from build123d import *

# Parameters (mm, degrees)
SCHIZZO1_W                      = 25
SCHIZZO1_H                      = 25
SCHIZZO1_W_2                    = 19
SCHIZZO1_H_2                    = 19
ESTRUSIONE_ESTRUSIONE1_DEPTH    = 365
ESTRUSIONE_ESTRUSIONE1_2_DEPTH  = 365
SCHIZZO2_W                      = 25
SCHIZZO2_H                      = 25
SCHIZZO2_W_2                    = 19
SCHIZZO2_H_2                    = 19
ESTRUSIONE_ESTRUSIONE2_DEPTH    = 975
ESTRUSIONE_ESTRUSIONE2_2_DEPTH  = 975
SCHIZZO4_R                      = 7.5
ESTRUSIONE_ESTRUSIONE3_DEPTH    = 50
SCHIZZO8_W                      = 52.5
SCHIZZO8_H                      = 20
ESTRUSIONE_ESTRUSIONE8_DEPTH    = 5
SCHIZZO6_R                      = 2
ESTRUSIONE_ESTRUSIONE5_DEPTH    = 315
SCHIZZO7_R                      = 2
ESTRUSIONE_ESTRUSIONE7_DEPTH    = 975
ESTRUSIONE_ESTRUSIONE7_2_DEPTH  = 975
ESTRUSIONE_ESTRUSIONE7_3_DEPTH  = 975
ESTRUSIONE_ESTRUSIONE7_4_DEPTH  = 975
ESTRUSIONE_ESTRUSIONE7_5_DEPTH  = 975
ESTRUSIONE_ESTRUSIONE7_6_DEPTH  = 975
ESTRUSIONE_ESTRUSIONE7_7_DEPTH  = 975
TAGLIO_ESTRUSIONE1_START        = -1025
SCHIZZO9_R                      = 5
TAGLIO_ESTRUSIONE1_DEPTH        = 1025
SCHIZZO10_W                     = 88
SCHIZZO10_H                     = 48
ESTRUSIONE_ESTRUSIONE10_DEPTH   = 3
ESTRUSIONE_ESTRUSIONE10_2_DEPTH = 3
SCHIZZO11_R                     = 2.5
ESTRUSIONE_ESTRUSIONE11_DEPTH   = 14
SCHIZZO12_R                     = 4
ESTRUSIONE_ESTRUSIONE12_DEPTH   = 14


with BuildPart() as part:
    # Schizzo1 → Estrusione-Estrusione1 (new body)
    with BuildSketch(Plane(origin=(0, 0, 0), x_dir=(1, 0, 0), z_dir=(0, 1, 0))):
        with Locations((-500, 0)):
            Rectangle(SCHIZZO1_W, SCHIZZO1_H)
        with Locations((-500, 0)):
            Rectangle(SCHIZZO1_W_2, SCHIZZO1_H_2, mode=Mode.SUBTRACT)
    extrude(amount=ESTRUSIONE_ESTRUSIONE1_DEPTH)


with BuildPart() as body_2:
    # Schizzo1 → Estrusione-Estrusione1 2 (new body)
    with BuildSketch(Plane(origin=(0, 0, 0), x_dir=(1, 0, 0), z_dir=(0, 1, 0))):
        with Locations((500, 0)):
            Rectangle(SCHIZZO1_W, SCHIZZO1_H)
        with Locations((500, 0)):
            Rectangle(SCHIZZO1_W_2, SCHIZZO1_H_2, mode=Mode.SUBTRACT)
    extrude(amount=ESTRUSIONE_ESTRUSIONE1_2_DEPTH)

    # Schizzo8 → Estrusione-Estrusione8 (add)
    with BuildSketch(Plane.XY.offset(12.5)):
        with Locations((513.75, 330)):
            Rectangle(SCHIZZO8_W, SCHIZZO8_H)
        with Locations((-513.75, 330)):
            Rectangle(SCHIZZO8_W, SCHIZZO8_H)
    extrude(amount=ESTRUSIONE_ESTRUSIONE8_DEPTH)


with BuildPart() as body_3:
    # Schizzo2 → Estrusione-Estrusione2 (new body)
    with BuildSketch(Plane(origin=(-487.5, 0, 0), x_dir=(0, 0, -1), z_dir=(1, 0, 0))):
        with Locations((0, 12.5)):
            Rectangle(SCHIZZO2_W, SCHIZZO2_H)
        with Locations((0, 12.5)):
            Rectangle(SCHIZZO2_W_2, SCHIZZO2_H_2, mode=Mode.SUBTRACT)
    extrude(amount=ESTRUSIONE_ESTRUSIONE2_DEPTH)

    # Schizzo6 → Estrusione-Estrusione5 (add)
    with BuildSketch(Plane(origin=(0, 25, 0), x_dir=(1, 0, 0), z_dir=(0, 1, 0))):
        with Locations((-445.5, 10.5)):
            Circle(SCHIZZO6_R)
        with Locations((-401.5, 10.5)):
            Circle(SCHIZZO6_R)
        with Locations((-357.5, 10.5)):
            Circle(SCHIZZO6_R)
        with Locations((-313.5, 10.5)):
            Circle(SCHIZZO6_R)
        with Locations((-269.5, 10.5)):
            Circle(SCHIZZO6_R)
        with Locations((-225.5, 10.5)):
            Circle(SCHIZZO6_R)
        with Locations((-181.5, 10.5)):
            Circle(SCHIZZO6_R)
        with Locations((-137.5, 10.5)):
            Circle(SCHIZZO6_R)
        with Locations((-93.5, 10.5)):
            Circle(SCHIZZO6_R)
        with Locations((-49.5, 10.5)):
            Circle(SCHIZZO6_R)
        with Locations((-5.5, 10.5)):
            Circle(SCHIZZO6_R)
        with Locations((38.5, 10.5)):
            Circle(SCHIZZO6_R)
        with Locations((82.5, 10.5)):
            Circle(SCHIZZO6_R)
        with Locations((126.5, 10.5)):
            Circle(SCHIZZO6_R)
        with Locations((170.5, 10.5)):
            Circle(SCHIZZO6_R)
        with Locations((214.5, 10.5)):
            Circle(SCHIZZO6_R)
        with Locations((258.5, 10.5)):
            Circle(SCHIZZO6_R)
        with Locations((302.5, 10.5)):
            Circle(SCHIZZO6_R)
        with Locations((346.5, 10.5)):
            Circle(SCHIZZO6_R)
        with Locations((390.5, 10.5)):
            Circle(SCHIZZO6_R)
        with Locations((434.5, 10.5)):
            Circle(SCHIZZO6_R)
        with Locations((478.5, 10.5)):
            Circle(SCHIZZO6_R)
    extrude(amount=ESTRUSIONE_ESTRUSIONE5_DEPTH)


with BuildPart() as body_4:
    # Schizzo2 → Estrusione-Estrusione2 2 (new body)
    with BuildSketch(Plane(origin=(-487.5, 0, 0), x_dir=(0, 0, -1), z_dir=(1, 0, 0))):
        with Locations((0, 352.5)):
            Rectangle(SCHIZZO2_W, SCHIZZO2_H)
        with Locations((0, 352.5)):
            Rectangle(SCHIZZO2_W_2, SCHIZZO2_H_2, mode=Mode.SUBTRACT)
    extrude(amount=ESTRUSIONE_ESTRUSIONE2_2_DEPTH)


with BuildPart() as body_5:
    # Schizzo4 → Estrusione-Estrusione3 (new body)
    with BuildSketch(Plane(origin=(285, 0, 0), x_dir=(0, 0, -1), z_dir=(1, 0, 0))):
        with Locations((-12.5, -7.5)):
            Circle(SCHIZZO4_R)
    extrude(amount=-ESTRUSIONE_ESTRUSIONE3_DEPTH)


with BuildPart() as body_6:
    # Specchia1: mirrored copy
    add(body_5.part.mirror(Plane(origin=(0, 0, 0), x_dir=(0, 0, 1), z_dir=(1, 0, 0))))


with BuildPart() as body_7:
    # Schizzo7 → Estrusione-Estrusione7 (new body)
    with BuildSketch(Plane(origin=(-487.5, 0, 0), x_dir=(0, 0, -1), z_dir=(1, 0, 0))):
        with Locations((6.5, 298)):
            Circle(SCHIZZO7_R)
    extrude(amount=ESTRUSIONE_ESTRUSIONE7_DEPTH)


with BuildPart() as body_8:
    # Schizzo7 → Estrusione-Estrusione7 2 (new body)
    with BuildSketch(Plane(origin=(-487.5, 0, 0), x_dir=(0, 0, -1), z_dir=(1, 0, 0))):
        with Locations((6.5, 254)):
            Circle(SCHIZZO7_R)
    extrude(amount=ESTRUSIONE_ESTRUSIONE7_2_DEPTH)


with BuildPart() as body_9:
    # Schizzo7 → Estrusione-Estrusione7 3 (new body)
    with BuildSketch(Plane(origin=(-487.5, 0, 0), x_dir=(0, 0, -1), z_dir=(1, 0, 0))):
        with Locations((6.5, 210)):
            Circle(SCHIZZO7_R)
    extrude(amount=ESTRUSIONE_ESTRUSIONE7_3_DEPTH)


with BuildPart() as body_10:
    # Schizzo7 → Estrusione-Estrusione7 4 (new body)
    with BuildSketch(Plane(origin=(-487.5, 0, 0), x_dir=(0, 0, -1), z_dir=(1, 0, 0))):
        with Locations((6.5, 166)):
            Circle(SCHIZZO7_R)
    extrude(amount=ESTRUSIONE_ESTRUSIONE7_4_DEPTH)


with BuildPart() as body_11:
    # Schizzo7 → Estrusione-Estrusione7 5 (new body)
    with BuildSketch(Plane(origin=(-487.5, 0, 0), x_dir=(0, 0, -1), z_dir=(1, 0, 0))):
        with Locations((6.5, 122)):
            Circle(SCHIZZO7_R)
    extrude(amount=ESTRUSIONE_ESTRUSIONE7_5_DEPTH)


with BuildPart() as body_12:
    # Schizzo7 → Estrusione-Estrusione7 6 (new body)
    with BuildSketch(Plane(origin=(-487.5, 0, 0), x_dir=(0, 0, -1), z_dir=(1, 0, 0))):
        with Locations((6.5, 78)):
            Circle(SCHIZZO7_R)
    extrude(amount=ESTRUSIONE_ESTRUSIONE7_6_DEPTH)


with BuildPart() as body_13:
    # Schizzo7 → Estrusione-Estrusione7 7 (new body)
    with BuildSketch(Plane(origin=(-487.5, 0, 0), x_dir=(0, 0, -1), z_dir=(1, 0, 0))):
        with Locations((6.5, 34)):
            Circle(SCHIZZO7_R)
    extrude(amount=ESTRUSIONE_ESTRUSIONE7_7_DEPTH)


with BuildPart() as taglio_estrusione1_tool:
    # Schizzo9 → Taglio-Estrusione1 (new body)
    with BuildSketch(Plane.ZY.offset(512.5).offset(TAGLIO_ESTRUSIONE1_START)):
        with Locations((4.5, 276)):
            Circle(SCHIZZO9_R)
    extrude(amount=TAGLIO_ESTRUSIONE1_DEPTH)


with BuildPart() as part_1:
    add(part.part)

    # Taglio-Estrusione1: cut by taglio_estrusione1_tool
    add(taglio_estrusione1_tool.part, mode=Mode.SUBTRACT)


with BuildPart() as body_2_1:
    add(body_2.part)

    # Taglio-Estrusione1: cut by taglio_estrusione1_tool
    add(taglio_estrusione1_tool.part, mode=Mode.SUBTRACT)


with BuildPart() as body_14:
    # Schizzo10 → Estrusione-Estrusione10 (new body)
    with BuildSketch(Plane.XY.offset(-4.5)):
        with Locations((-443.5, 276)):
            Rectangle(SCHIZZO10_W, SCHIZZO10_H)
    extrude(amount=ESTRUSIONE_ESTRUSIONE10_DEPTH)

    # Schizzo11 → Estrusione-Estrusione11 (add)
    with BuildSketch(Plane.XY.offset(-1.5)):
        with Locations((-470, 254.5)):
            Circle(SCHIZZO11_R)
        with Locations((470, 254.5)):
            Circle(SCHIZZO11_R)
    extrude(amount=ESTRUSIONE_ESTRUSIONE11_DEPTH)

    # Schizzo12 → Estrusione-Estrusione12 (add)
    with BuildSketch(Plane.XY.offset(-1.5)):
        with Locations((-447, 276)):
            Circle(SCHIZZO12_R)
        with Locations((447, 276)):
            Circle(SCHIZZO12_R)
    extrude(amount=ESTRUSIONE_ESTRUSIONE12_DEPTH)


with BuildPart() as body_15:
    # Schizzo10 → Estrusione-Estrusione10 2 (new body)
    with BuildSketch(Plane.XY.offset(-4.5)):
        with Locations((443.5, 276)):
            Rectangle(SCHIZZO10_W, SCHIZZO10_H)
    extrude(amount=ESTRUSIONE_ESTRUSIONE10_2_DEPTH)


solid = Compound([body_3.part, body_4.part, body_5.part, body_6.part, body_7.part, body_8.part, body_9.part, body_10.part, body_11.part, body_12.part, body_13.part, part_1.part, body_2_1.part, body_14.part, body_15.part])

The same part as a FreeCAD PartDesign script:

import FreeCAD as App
import Part
import Sketcher
from FreeCAD import Vector


def add_polygon(sketch, points):
    """Adds a closed chain of lines whose ends are joined by coincident constraints."""
    first, n = sketch.GeometryCount, len(points)
    for a, b in zip(points, points[1:] + points[:1]):
        sketch.addGeometry(Part.LineSegment(App.Vector(*a, 0), App.Vector(*b, 0)), False)
    for i in range(n):
        sketch.addConstraint(Sketcher.Constraint("Coincident", first + i, 2, first + (i + 1) % n, 1))

doc = App.newDocument("Part")
body = doc.addObject("PartDesign::Body", "Body")

sketch1 = doc.addObject("Sketcher::SketchObject", "Sketch")
body.addObject(sketch1)
sketch1.AttachmentSupport = (doc.XZ_Plane, [""])
sketch1.MapMode = "FlatFace"
add_polygon(sketch1, [(-512.5, -12.5), (-512.5, 12.5), (-487.5, 12.5), (-487.5, -12.5)])
add_polygon(sketch1, [(-490.5, 9.5), (-509.5, 9.5), (-509.5, -9.5), (-490.5, -9.5)])
sketch1.addConstraint([
    Sketcher.Constraint("Vertical", 0),
    Sketcher.Constraint("Horizontal", 1),
    Sketcher.Constraint("Vertical", 2),
    Sketcher.Constraint("Horizontal", 3),
    Sketcher.Constraint("Horizontal", 4),
    Sketcher.Constraint("Vertical", 5),
    Sketcher.Constraint("Horizontal", 6),
    Sketcher.Constraint("Vertical", 7),
    Sketcher.Constraint("Equal", 3, 0),
    Sketcher.Constraint("Equal", 6, 5),
    Sketcher.Constraint("DistanceX", 1, 1, 1, 2, 25.0),
    Sketcher.Constraint("DistanceX", 4, 2, 4, 1, 19.0),
    Sketcher.Constraint("DistanceX", 0, 2, 4, 2, 3.0),
    Sketcher.Constraint("DistanceY", 4, 2, 0, 2, 3.0),
    Sketcher.Constraint("DistanceX", 0, 2, -1, 1, 512.5),
    Sketcher.Constraint("DistanceY", -1, 1, 0, 2, 12.5),
])
pad1 = doc.addObject("PartDesign::Pad", "Pad")
body.addObject(pad1)
pad1.Profile = sketch1
pad1.Length = 365
pad1.Reversed = True
body2 = doc.addObject("PartDesign::Body", "Body001")
body2.AllowCompound = True

sketch2 = doc.addObject("Sketcher::SketchObject", "Sketch001")
body2.addObject(sketch2)
sketch2.AttachmentSupport = (doc.getObject("XZ_Plane001"), [""])
sketch2.MapMode = "FlatFace"
add_polygon(sketch2, [(487.5, -12.5), (487.5, 12.5), (512.5, 12.5), (512.5, -12.5)])
add_polygon(sketch2, [(509.5, 9.5), (490.5, 9.5), (490.5, -9.5), (509.5, -9.5)])
sketch2.addConstraint([
    Sketcher.Constraint("Vertical", 0),
    Sketcher.Constraint("Horizontal", 1),
    Sketcher.Constraint("Vertical", 2),
    Sketcher.Constraint("Horizontal", 3),
    Sketcher.Constraint("Horizontal", 4),
    Sketcher.Constraint("Vertical", 5),
    Sketcher.Constraint("Horizontal", 6),
    Sketcher.Constraint("Vertical", 7),
    Sketcher.Constraint("Equal", 3, 0),
    Sketcher.Constraint("Equal", 6, 5),
    Sketcher.Constraint("DistanceX", 1, 1, 1, 2, 25.0),
    Sketcher.Constraint("DistanceX", 4, 2, 4, 1, 19.0),
    Sketcher.Constraint("DistanceX", 0, 2, 4, 2, 3.0),
    Sketcher.Constraint("DistanceY", 4, 2, 0, 2, 3.0),
    Sketcher.Constraint("DistanceX", -1, 1, 0, 2, 487.5),
    Sketcher.Constraint("DistanceY", -1, 1, 0, 2, 12.5),
])
pad2 = doc.addObject("PartDesign::Pad", "Pad001")
body2.addObject(pad2)
pad2.Profile = sketch2
pad2.Length = 365
pad2.Reversed = True

sketch3 = doc.addObject("Sketcher::SketchObject", "Sketch002")
body2.addObject(sketch3)
sketch3.AttachmentSupport = (doc.getObject("XY_Plane001"), [""])
sketch3.MapMode = "FlatFace"
sketch3.AttachmentOffset = App.Placement(Vector(0, 0, 12.5), App.Rotation())
add_polygon(sketch3, [(487.5, 340), (487.5, 320), (540, 320), (540, 340)])
add_polygon(sketch3, [(-540, 340), (-540, 320), (-487.5, 320), (-487.5, 340)])
sketch3.addConstraint([
    Sketcher.Constraint("Vertical", 0),
    Sketcher.Constraint("Horizontal", 1),
    Sketcher.Constraint("Vertical", 2),
    Sketcher.Constraint("Horizontal", 3),
    Sketcher.Constraint("Vertical", 4),
    Sketcher.Constraint("Horizontal", 5),
    Sketcher.Constraint("Vertical", 6),
    Sketcher.Constraint("Horizontal", 7),
    Sketcher.Constraint("Symmetric", 1, 2, 4, 2, -2),
    Sketcher.Constraint("Symmetric", 3, 2, 6, 2, -2),
    Sketcher.Constraint("DistanceY", 0, 2, 0, 1, 20.0),
    Sketcher.Constraint("DistanceX", 1, 1, 1, 2, 52.5),
    Sketcher.Constraint("DistanceY", -1, 1, 0, 2, 320.0),
    Sketcher.Constraint("DistanceX", -1, 1, 1, 2, 540.0),
])
pad3 = doc.addObject("PartDesign::Pad", "Pad002")
body2.addObject(pad3)
pad3.Profile = sketch3
pad3.Length = 5
body3 = doc.addObject("PartDesign::Body", "Body002")

sketch4 = doc.addObject("Sketcher::SketchObject", "Sketch003")
body3.addObject(sketch4)
sketch4.AttachmentSupport = (doc.getObject("YZ_Plane002"), [""])
sketch4.MapMode = "FlatFace"
sketch4.AttachmentOffset = App.Placement(Vector(0, 0, -487.5), App.Rotation())
add_polygon(sketch4, [(25, 12.5), (0, 12.5), (0, -12.5), (25, -12.5)])
add_polygon(sketch4, [(3, -9.5), (3, 9.5), (22, 9.5), (22, -9.5)])
sketch4.addConstraint([
    Sketcher.Constraint("Horizontal", 0),
    Sketcher.Constraint("Vertical", 1),
    Sketcher.Constraint("Horizontal", 2),
    Sketcher.Constraint("Vertical", 3),
    Sketcher.Constraint("Vertical", 4),
    Sketcher.Constraint("Horizontal", 5),
    Sketcher.Constraint("Vertical", 6),
    Sketcher.Constraint("Horizontal", 7),
    Sketcher.Constraint("Symmetric", 0, 2, 1, 2, -1, 1),
    Sketcher.Constraint("Equal", 2, 1),
    Sketcher.Constraint("Equal", 7, 4),
    Sketcher.Constraint("DistanceX", 0, 2, 0, 1, 25.0),
    Sketcher.Constraint("DistanceX", 5, 1, 5, 2, 19.0),
    Sketcher.Constraint("DistanceX", -1, 1, 4, 2, 3.0),
    Sketcher.Constraint("DistanceY", 4, 2, 0, 2, 3.0),
])
pad4 = doc.addObject("PartDesign::Pad", "Pad003")
body3.addObject(pad4)
pad4.Profile = sketch4
pad4.Length = 975

sketch5 = doc.addObject("Sketcher::SketchObject", "Sketch004")
body3.addObject(sketch5)
sketch5.AttachmentSupport = (doc.getObject("XZ_Plane002"), [""])
sketch5.MapMode = "FlatFace"
sketch5.AttachmentOffset = App.Placement(Vector(0, 0, -25), App.Rotation())
sketch5.addGeometry([
    Part.Circle(Vector(-445.5, -10.5, 0), Vector(0, 0, 1), 2),
    Part.Circle(Vector(-401.5, -10.5, 0), Vector(0, 0, 1), 2),
    Part.Circle(Vector(-357.5, -10.5, 0), Vector(0, 0, 1), 2),
    Part.Circle(Vector(-313.5, -10.5, 0), Vector(0, 0, 1), 2),
    Part.Circle(Vector(-269.5, -10.5, 0), Vector(0, 0, 1), 2),
    Part.Circle(Vector(-225.5, -10.5, 0), Vector(0, 0, 1), 2),
    Part.Circle(Vector(-181.5, -10.5, 0), Vector(0, 0, 1), 2),
    Part.Circle(Vector(-137.5, -10.5, 0), Vector(0, 0, 1), 2),
    Part.Circle(Vector(-93.5, -10.5, 0), Vector(0, 0, 1), 2),
    Part.Circle(Vector(-49.5, -10.5, 0), Vector(0, 0, 1), 2),
    Part.Circle(Vector(-5.5, -10.5, 0), Vector(0, 0, 1), 2),
    Part.Circle(Vector(38.5, -10.5, 0), Vector(0, 0, 1), 2),
    Part.Circle(Vector(82.5, -10.5, 0), Vector(0, 0, 1), 2),
    Part.Circle(Vector(126.5, -10.5, 0), Vector(0, 0, 1), 2),
    Part.Circle(Vector(170.5, -10.5, 0), Vector(0, 0, 1), 2),
    Part.Circle(Vector(214.5, -10.5, 0), Vector(0, 0, 1), 2),
    Part.Circle(Vector(258.5, -10.5, 0), Vector(0, 0, 1), 2),
    Part.Circle(Vector(302.5, -10.5, 0), Vector(0, 0, 1), 2),
    Part.Circle(Vector(346.5, -10.5, 0), Vector(0, 0, 1), 2),
    Part.Circle(Vector(390.5, -10.5, 0), Vector(0, 0, 1), 2),
    Part.Circle(Vector(434.5, -10.5, 0), Vector(0, 0, 1), 2),
    Part.Circle(Vector(478.5, -10.5, 0), Vector(0, 0, 1), 2),
], False)
sketch5.addConstraint([
    Sketcher.Constraint("Equal", 0, 1),
    Sketcher.Constraint("Equal", 1, 2),
    Sketcher.Constraint("Equal", 2, 3),
    Sketcher.Constraint("Equal", 3, 4),
    Sketcher.Constraint("Equal", 4, 5),
    Sketcher.Constraint("Equal", 5, 6),
    Sketcher.Constraint("Equal", 6, 7),
    Sketcher.Constraint("Equal", 7, 8),
    Sketcher.Constraint("Equal", 8, 9),
    Sketcher.Constraint("Equal", 9, 10),
    Sketcher.Constraint("Equal", 10, 11),
    Sketcher.Constraint("Equal", 11, 12),
    Sketcher.Constraint("Equal", 12, 13),
    Sketcher.Constraint("Equal", 13, 14),
    Sketcher.Constraint("Equal", 14, 15),
    Sketcher.Constraint("Equal", 15, 16),
    Sketcher.Constraint("Equal", 16, 17),
    Sketcher.Constraint("Equal", 17, 18),
    Sketcher.Constraint("Equal", 18, 19),
    Sketcher.Constraint("Equal", 19, 20),
    Sketcher.Constraint("Equal", 20, 21),
    Sketcher.Constraint("Horizontal", 0, 3, 1, 3),
    Sketcher.Constraint("Horizontal", 1, 3, 2, 3),
    Sketcher.Constraint("Horizontal", 2, 3, 3, 3),
    Sketcher.Constraint("Horizontal", 3, 3, 4, 3),
    Sketcher.Constraint("Horizontal", 4, 3, 5, 3),
    Sketcher.Constraint("Horizontal", 5, 3, 6, 3),
    Sketcher.Constraint("Horizontal", 6, 3, 7, 3),
    Sketcher.Constraint("Horizontal", 7, 3, 8, 3),
    Sketcher.Constraint("Horizontal", 8, 3, 9, 3),
    Sketcher.Constraint("Horizontal", 9, 3, 10, 3),
    Sketcher.Constraint("Horizontal", 10, 3, 11, 3),
    Sketcher.Constraint("Horizontal", 11, 3, 12, 3),
    Sketcher.Constraint("Horizontal", 12, 3, 13, 3),
    Sketcher.Constraint("Horizontal", 13, 3, 14, 3),
    Sketcher.Constraint("Horizontal", 14, 3, 15, 3),
    Sketcher.Constraint("Horizontal", 15, 3, 16, 3),
    Sketcher.Constraint("Horizontal", 16, 3, 17, 3),
    Sketcher.Constraint("Horizontal", 17, 3, 18, 3),
    Sketcher.Constraint("Horizontal", 18, 3, 19, 3),
    Sketcher.Constraint("Horizontal", 19, 3, 20, 3),
    Sketcher.Constraint("Horizontal", 20, 3, 21, 3),
    Sketcher.Constraint("Diameter", 0, 4.0),
    Sketcher.Constraint("DistanceX", 0, 3, 1, 3, 44.0),
    Sketcher.Constraint("DistanceX", 1, 3, 2, 3, 44.0),
    Sketcher.Constraint("DistanceX", 2, 3, 3, 3, 44.0),
    Sketcher.Constraint("DistanceX", 3, 3, 4, 3, 44.0),
    Sketcher.Constraint("DistanceX", 4, 3, 5, 3, 44.0),
    Sketcher.Constraint("DistanceX", 5, 3, 6, 3, 44.0),
    Sketcher.Constraint("DistanceX", 6, 3, 7, 3, 44.0),
    Sketcher.Constraint("DistanceX", 7, 3, 8, 3, 44.0),
    Sketcher.Constraint("DistanceX", 8, 3, 9, 3, 44.0),
    Sketcher.Constraint("DistanceX", 9, 3, 10, 3, 44.0),
    Sketcher.Constraint("DistanceX", 10, 3, 11, 3, 44.0),
    Sketcher.Constraint("DistanceX", 11, 3, 12, 3, 44.0),
    Sketcher.Constraint("DistanceX", 12, 3, 13, 3, 44.0),
    Sketcher.Constraint("DistanceX", 13, 3, 14, 3, 44.0),
    Sketcher.Constraint("DistanceX", 14, 3, 15, 3, 44.0),
    Sketcher.Constraint("DistanceX", 15, 3, 16, 3, 44.0),
    Sketcher.Constraint("DistanceX", 16, 3, 17, 3, 44.0),
    Sketcher.Constraint("DistanceX", 17, 3, 18, 3, 44.0),
    Sketcher.Constraint("DistanceX", 18, 3, 19, 3, 44.0),
    Sketcher.Constraint("DistanceX", 19, 3, 20, 3, 44.0),
    Sketcher.Constraint("DistanceX", 20, 3, 21, 3, 44.0),
    Sketcher.Constraint("DistanceX", 0, 3, -1, 1, 445.5),
    Sketcher.Constraint("DistanceY", 0, 3, -1, 1, 10.5),
])
pad5 = doc.addObject("PartDesign::Pad", "Pad004")
body3.addObject(pad5)
pad5.Profile = sketch5
pad5.Length = 315
pad5.Reversed = True
body4 = doc.addObject("PartDesign::Body", "Body003")

sketch6 = doc.addObject("Sketcher::SketchObject", "Sketch005")
body4.addObject(sketch6)
sketch6.AttachmentSupport = (doc.getObject("YZ_Plane003"), [""])
sketch6.MapMode = "FlatFace"
sketch6.AttachmentOffset = App.Placement(Vector(0, 0, -487.5), App.Rotation())
add_polygon(sketch6, [(365, 12.5), (340, 12.5), (340, -12.5), (365, -12.5)])
add_polygon(sketch6, [(343, -9.5), (343, 9.5), (362, 9.5), (362, -9.5)])
sketch6.addConstraint([
    Sketcher.Constraint("Horizontal", 0),
    Sketcher.Constraint("Vertical", 1),
    Sketcher.Constraint("Horizontal", 2),
    Sketcher.Constraint("Vertical", 3),
    Sketcher.Constraint("Vertical", 4),
    Sketcher.Constraint("Horizontal", 5),
    Sketcher.Constraint("Vertical", 6),
    Sketcher.Constraint("Horizontal", 7),
    Sketcher.Constraint("Equal", 2, 1),
    Sketcher.Constraint("Equal", 7, 4),
    Sketcher.Constraint("DistanceX", 0, 2, 0, 1, 25.0),
    Sketcher.Constraint("DistanceX", 5, 1, 5, 2, 19.0),
    Sketcher.Constraint("DistanceX", -1, 1, 0, 2, 340.0),
    Sketcher.Constraint("DistanceX", -1, 1, 4, 2, 343.0),
    Sketcher.Constraint("DistanceY", 4, 2, 0, 2, 3.0),
    Sketcher.Constraint("DistanceY", -1, 1, 0, 2, 12.5),
])
pad6 = doc.addObject("PartDesign::Pad", "Pad005")
body4.addObject(pad6)
pad6.Profile = sketch6
pad6.Length = 975
body5 = doc.addObject("PartDesign::Body", "Body004")

sketch7 = doc.addObject("Sketcher::SketchObject", "Sketch006")
body5.addObject(sketch7)
sketch7.AttachmentSupport = (doc.getObject("YZ_Plane004"), [""])
sketch7.MapMode = "FlatFace"
sketch7.AttachmentOffset = App.Placement(Vector(0, 0, 285), App.Rotation())
sketch7.addGeometry(Part.Circle(Vector(-7.5, 12.5, 0), Vector(0, 0, 1), 7.5), False)
sketch7.addConstraint([
    Sketcher.Constraint("Diameter", 0, 15.0),
    Sketcher.Constraint("DistanceX", 0, 3, -1, 1, 7.5),
    Sketcher.Constraint("DistanceY", -1, 1, 0, 3, 12.5),
])
pad7 = doc.addObject("PartDesign::Pad", "Pad006")
body5.addObject(pad7)
pad7.Profile = sketch7
pad7.Length = 50
pad7.Reversed = True
body6 = doc.addObject("PartDesign::Body", "Body005")
doc.recompute()

mirroring = doc.addObject("Part::Mirroring", "Mirroring")
mirroring.Source = body5
mirroring.Base = Vector(0, 0, 0)
mirroring.Normal = Vector(1, 0, 0)
body6.BaseFeature = mirroring
doc.recompute()
body7 = doc.addObject("PartDesign::Body", "Body006")

sketch8 = doc.addObject("Sketcher::SketchObject", "Sketch007")
body7.addObject(sketch8)
sketch8.AttachmentSupport = (doc.getObject("YZ_Plane006"), [""])
sketch8.MapMode = "FlatFace"
sketch8.AttachmentOffset = App.Placement(Vector(0, 0, -487.5), App.Rotation())
sketch8.addGeometry(Part.Circle(Vector(298, -6.5, 0), Vector(0, 0, 1), 2), False)
sketch8.addConstraint([
    Sketcher.Constraint("Diameter", 0, 4.0),
    Sketcher.Constraint("DistanceX", -1, 1, 0, 3, 298.0),
    Sketcher.Constraint("DistanceY", 0, 3, -1, 1, 6.5),
])
pad8 = doc.addObject("PartDesign::Pad", "Pad007")
body7.addObject(pad8)
pad8.Profile = sketch8
pad8.Length = 975
body8 = doc.addObject("PartDesign::Body", "Body007")

sketch9 = doc.addObject("Sketcher::SketchObject", "Sketch008")
body8.addObject(sketch9)
sketch9.AttachmentSupport = (doc.getObject("YZ_Plane007"), [""])
sketch9.MapMode = "FlatFace"
sketch9.AttachmentOffset = App.Placement(Vector(0, 0, -487.5), App.Rotation())
sketch9.addGeometry(Part.Circle(Vector(254, -6.5, 0), Vector(0, 0, 1), 2), False)
sketch9.addConstraint([
    Sketcher.Constraint("Diameter", 0, 4.0),
    Sketcher.Constraint("DistanceX", -1, 1, 0, 3, 254.0),
    Sketcher.Constraint("DistanceY", 0, 3, -1, 1, 6.5),
])
pad9 = doc.addObject("PartDesign::Pad", "Pad008")
body8.addObject(pad9)
pad9.Profile = sketch9
pad9.Length = 975
body9 = doc.addObject("PartDesign::Body", "Body008")

sketch10 = doc.addObject("Sketcher::SketchObject", "Sketch009")
body9.addObject(sketch10)
sketch10.AttachmentSupport = (doc.getObject("YZ_Plane008"), [""])
sketch10.MapMode = "FlatFace"
sketch10.AttachmentOffset = App.Placement(Vector(0, 0, -487.5), App.Rotation())
sketch10.addGeometry(Part.Circle(Vector(210, -6.5, 0), Vector(0, 0, 1), 2), False)
sketch10.addConstraint([
    Sketcher.Constraint("Diameter", 0, 4.0),
    Sketcher.Constraint("DistanceX", -1, 1, 0, 3, 210.0),
    Sketcher.Constraint("DistanceY", 0, 3, -1, 1, 6.5),
])
pad10 = doc.addObject("PartDesign::Pad", "Pad009")
body9.addObject(pad10)
pad10.Profile = sketch10
pad10.Length = 975
body10 = doc.addObject("PartDesign::Body", "Body009")

sketch11 = doc.addObject("Sketcher::SketchObject", "Sketch010")
body10.addObject(sketch11)
sketch11.AttachmentSupport = (doc.getObject("YZ_Plane009"), [""])
sketch11.MapMode = "FlatFace"
sketch11.AttachmentOffset = App.Placement(Vector(0, 0, -487.5), App.Rotation())
sketch11.addGeometry(Part.Circle(Vector(166, -6.5, 0), Vector(0, 0, 1), 2), False)
sketch11.addConstraint([
    Sketcher.Constraint("Diameter", 0, 4.0),
    Sketcher.Constraint("DistanceX", -1, 1, 0, 3, 166.0),
    Sketcher.Constraint("DistanceY", 0, 3, -1, 1, 6.5),
])
pad11 = doc.addObject("PartDesign::Pad", "Pad010")
body10.addObject(pad11)
pad11.Profile = sketch11
pad11.Length = 975
body11 = doc.addObject("PartDesign::Body", "Body010")

sketch12 = doc.addObject("Sketcher::SketchObject", "Sketch011")
body11.addObject(sketch12)
sketch12.AttachmentSupport = (doc.getObject("YZ_Plane010"), [""])
sketch12.MapMode = "FlatFace"
sketch12.AttachmentOffset = App.Placement(Vector(0, 0, -487.5), App.Rotation())
sketch12.addGeometry(Part.Circle(Vector(122, -6.5, 0), Vector(0, 0, 1), 2), False)
sketch12.addConstraint([
    Sketcher.Constraint("Diameter", 0, 4.0),
    Sketcher.Constraint("DistanceX", -1, 1, 0, 3, 122.0),
    Sketcher.Constraint("DistanceY", 0, 3, -1, 1, 6.5),
])
pad12 = doc.addObject("PartDesign::Pad", "Pad011")
body11.addObject(pad12)
pad12.Profile = sketch12
pad12.Length = 975
body12 = doc.addObject("PartDesign::Body", "Body011")

sketch13 = doc.addObject("Sketcher::SketchObject", "Sketch012")
body12.addObject(sketch13)
sketch13.AttachmentSupport = (doc.getObject("YZ_Plane011"), [""])
sketch13.MapMode = "FlatFace"
sketch13.AttachmentOffset = App.Placement(Vector(0, 0, -487.5), App.Rotation())
sketch13.addGeometry(Part.Circle(Vector(78, -6.5, 0), Vector(0, 0, 1), 2), False)
sketch13.addConstraint([
    Sketcher.Constraint("Diameter", 0, 4.0),
    Sketcher.Constraint("DistanceX", -1, 1, 0, 3, 78.0),
    Sketcher.Constraint("DistanceY", 0, 3, -1, 1, 6.5),
])
pad13 = doc.addObject("PartDesign::Pad", "Pad012")
body12.addObject(pad13)
pad13.Profile = sketch13
pad13.Length = 975
body13 = doc.addObject("PartDesign::Body", "Body012")

sketch14 = doc.addObject("Sketcher::SketchObject", "Sketch013")
body13.addObject(sketch14)
sketch14.AttachmentSupport = (doc.getObject("YZ_Plane012"), [""])
sketch14.MapMode = "FlatFace"
sketch14.AttachmentOffset = App.Placement(Vector(0, 0, -487.5), App.Rotation())
sketch14.addGeometry(Part.Circle(Vector(34, -6.5, 0), Vector(0, 0, 1), 2), False)
sketch14.addConstraint([
    Sketcher.Constraint("Diameter", 0, 4.0),
    Sketcher.Constraint("DistanceX", -1, 1, 0, 3, 34.0),
    Sketcher.Constraint("DistanceY", 0, 3, -1, 1, 6.5),
])
pad14 = doc.addObject("PartDesign::Pad", "Pad013")
body13.addObject(pad14)
pad14.Profile = sketch14
pad14.Length = 975
body14 = doc.addObject("PartDesign::Body", "Body013")

sketch15 = doc.addObject("Sketcher::SketchObject", "Sketch014")
body14.addObject(sketch15)
sketch15.AttachmentSupport = (doc.getObject("YZ_Plane013"), [""])
sketch15.MapMode = "FlatFace"
sketch15.AttachmentOffset = App.Placement(Vector(0, 0, 512.5), App.Rotation())
sketch15.addGeometry(Part.Circle(Vector(276, 4.5, 0), Vector(0, 0, 1), 5), False)
sketch15.addConstraint([
    Sketcher.Constraint("Diameter", 0, 10.0),
    Sketcher.Constraint("DistanceX", -1, 1, 0, 3, 276.0),
    Sketcher.Constraint("DistanceY", -1, 1, 0, 3, 4.5),
])
pad15 = doc.addObject("PartDesign::Pad", "Pad014")
body14.addObject(pad15)
pad15.Profile = sketch15
pad15.Length = 1025
pad15.Reversed = True
doc.recompute()

body15 = doc.addObject("PartDesign::Body", "Body014")
body15.BaseFeature = body14
boolean = doc.addObject("PartDesign::Boolean", "Boolean")
body.addObject(boolean)
boolean.Type = "Cut"
boolean.addObjects([body15])
doc.recompute()
body2.AllowCompound = True
doc.recompute()

boolean2 = doc.addObject("PartDesign::Boolean", "Boolean001")
body2.addObject(boolean2)
boolean2.Type = "Cut"
boolean2.addObjects([body14])
body16 = doc.addObject("PartDesign::Body", "Body015")
body16.AllowCompound = True

sketch16 = doc.addObject("Sketcher::SketchObject", "Sketch015")
body16.addObject(sketch16)
sketch16.AttachmentSupport = (doc.getObject("XY_Plane015"), [""])
sketch16.MapMode = "FlatFace"
sketch16.AttachmentOffset = App.Placement(Vector(0, 0, -4.5), App.Rotation())
add_polygon(sketch16, [(-487.5, 300), (-487.5, 252), (-399.5, 252), (-399.5, 300)])
sketch16.addConstraint([
    Sketcher.Constraint("Vertical", 0),
    Sketcher.Constraint("Horizontal", 1),
    Sketcher.Constraint("Vertical", 2),
    Sketcher.Constraint("Horizontal", 3),
    Sketcher.Constraint("DistanceX", 1, 1, 1, 2, 88.0),
    Sketcher.Constraint("DistanceY", 0, 2, 0, 1, 48.0),
    Sketcher.Constraint("DistanceY", -1, 1, 0, 2, 252.0),
    Sketcher.Constraint("DistanceX", 0, 2, -1, 1, 487.5),
])
pad16 = doc.addObject("PartDesign::Pad", "Pad015")
body16.addObject(pad16)
pad16.Profile = sketch16
pad16.Length = 3

sketch17 = doc.addObject("Sketcher::SketchObject", "Sketch016")
body16.addObject(sketch17)
sketch17.AttachmentSupport = (doc.getObject("XY_Plane015"), [""])
sketch17.MapMode = "FlatFace"
sketch17.AttachmentOffset = App.Placement(Vector(0, 0, -1.5), App.Rotation())
sketch17.addGeometry([
    Part.Circle(Vector(-470, 254.5, 0), Vector(0, 0, 1), 2.5),
    Part.Circle(Vector(470, 254.5, 0), Vector(0, 0, 1), 2.5),
], False)
sketch17.addConstraint([
    Sketcher.Constraint("Equal", 0, 1),
    Sketcher.Constraint("Symmetric", 0, 3, 1, 3, -2),
    Sketcher.Constraint("Diameter", 0, 5.0),
    Sketcher.Constraint("DistanceX", 0, 3, -1, 1, 470.0),
    Sketcher.Constraint("DistanceY", -1, 1, 0, 3, 254.5),
])
pad17 = doc.addObject("PartDesign::Pad", "Pad016")
body16.addObject(pad17)
pad17.Profile = sketch17
pad17.Length = 14

sketch18 = doc.addObject("Sketcher::SketchObject", "Sketch017")
body16.addObject(sketch18)
sketch18.AttachmentSupport = (doc.getObject("XY_Plane015"), [""])
sketch18.MapMode = "FlatFace"
sketch18.AttachmentOffset = App.Placement(Vector(0, 0, -1.5), App.Rotation())
sketch18.addGeometry([
    Part.Circle(Vector(-447, 276, 0), Vector(0, 0, 1), 4),
    Part.Circle(Vector(447, 276, 0), Vector(0, 0, 1), 4),
], False)
sketch18.addConstraint([
    Sketcher.Constraint("Equal", 0, 1),
    Sketcher.Constraint("Symmetric", 0, 3, 1, 3, -2),
    Sketcher.Constraint("Diameter", 0, 8.0),
    Sketcher.Constraint("DistanceX", 0, 3, -1, 1, 447.0),
    Sketcher.Constraint("DistanceY", -1, 1, 0, 3, 276.0),
])
pad18 = doc.addObject("PartDesign::Pad", "Pad017")
body16.addObject(pad18)
pad18.Profile = sketch18
pad18.Length = 14
body17 = doc.addObject("PartDesign::Body", "Body016")

sketch19 = doc.addObject("Sketcher::SketchObject", "Sketch018")
body17.addObject(sketch19)
sketch19.AttachmentSupport = (doc.getObject("XY_Plane016"), [""])
sketch19.MapMode = "FlatFace"
sketch19.AttachmentOffset = App.Placement(Vector(0, 0, -4.5), App.Rotation())
add_polygon(sketch19, [(399.5, 300), (399.5, 252), (487.5, 252), (487.5, 300)])
sketch19.addConstraint([
    Sketcher.Constraint("Vertical", 0),
    Sketcher.Constraint("Horizontal", 1),
    Sketcher.Constraint("Vertical", 2),
    Sketcher.Constraint("Horizontal", 3),
    Sketcher.Constraint("DistanceX", 1, 1, 1, 2, 88.0),
    Sketcher.Constraint("DistanceY", 0, 2, 0, 1, 48.0),
    Sketcher.Constraint("DistanceY", -1, 1, 0, 2, 252.0),
    Sketcher.Constraint("DistanceX", -1, 1, 0, 2, 399.5),
])
pad19 = doc.addObject("PartDesign::Pad", "Pad018")
body17.addObject(pad19)
pad19.Profile = sketch19
pad19.Length = 3
mirroring.Visibility = False

doc.recompute()
